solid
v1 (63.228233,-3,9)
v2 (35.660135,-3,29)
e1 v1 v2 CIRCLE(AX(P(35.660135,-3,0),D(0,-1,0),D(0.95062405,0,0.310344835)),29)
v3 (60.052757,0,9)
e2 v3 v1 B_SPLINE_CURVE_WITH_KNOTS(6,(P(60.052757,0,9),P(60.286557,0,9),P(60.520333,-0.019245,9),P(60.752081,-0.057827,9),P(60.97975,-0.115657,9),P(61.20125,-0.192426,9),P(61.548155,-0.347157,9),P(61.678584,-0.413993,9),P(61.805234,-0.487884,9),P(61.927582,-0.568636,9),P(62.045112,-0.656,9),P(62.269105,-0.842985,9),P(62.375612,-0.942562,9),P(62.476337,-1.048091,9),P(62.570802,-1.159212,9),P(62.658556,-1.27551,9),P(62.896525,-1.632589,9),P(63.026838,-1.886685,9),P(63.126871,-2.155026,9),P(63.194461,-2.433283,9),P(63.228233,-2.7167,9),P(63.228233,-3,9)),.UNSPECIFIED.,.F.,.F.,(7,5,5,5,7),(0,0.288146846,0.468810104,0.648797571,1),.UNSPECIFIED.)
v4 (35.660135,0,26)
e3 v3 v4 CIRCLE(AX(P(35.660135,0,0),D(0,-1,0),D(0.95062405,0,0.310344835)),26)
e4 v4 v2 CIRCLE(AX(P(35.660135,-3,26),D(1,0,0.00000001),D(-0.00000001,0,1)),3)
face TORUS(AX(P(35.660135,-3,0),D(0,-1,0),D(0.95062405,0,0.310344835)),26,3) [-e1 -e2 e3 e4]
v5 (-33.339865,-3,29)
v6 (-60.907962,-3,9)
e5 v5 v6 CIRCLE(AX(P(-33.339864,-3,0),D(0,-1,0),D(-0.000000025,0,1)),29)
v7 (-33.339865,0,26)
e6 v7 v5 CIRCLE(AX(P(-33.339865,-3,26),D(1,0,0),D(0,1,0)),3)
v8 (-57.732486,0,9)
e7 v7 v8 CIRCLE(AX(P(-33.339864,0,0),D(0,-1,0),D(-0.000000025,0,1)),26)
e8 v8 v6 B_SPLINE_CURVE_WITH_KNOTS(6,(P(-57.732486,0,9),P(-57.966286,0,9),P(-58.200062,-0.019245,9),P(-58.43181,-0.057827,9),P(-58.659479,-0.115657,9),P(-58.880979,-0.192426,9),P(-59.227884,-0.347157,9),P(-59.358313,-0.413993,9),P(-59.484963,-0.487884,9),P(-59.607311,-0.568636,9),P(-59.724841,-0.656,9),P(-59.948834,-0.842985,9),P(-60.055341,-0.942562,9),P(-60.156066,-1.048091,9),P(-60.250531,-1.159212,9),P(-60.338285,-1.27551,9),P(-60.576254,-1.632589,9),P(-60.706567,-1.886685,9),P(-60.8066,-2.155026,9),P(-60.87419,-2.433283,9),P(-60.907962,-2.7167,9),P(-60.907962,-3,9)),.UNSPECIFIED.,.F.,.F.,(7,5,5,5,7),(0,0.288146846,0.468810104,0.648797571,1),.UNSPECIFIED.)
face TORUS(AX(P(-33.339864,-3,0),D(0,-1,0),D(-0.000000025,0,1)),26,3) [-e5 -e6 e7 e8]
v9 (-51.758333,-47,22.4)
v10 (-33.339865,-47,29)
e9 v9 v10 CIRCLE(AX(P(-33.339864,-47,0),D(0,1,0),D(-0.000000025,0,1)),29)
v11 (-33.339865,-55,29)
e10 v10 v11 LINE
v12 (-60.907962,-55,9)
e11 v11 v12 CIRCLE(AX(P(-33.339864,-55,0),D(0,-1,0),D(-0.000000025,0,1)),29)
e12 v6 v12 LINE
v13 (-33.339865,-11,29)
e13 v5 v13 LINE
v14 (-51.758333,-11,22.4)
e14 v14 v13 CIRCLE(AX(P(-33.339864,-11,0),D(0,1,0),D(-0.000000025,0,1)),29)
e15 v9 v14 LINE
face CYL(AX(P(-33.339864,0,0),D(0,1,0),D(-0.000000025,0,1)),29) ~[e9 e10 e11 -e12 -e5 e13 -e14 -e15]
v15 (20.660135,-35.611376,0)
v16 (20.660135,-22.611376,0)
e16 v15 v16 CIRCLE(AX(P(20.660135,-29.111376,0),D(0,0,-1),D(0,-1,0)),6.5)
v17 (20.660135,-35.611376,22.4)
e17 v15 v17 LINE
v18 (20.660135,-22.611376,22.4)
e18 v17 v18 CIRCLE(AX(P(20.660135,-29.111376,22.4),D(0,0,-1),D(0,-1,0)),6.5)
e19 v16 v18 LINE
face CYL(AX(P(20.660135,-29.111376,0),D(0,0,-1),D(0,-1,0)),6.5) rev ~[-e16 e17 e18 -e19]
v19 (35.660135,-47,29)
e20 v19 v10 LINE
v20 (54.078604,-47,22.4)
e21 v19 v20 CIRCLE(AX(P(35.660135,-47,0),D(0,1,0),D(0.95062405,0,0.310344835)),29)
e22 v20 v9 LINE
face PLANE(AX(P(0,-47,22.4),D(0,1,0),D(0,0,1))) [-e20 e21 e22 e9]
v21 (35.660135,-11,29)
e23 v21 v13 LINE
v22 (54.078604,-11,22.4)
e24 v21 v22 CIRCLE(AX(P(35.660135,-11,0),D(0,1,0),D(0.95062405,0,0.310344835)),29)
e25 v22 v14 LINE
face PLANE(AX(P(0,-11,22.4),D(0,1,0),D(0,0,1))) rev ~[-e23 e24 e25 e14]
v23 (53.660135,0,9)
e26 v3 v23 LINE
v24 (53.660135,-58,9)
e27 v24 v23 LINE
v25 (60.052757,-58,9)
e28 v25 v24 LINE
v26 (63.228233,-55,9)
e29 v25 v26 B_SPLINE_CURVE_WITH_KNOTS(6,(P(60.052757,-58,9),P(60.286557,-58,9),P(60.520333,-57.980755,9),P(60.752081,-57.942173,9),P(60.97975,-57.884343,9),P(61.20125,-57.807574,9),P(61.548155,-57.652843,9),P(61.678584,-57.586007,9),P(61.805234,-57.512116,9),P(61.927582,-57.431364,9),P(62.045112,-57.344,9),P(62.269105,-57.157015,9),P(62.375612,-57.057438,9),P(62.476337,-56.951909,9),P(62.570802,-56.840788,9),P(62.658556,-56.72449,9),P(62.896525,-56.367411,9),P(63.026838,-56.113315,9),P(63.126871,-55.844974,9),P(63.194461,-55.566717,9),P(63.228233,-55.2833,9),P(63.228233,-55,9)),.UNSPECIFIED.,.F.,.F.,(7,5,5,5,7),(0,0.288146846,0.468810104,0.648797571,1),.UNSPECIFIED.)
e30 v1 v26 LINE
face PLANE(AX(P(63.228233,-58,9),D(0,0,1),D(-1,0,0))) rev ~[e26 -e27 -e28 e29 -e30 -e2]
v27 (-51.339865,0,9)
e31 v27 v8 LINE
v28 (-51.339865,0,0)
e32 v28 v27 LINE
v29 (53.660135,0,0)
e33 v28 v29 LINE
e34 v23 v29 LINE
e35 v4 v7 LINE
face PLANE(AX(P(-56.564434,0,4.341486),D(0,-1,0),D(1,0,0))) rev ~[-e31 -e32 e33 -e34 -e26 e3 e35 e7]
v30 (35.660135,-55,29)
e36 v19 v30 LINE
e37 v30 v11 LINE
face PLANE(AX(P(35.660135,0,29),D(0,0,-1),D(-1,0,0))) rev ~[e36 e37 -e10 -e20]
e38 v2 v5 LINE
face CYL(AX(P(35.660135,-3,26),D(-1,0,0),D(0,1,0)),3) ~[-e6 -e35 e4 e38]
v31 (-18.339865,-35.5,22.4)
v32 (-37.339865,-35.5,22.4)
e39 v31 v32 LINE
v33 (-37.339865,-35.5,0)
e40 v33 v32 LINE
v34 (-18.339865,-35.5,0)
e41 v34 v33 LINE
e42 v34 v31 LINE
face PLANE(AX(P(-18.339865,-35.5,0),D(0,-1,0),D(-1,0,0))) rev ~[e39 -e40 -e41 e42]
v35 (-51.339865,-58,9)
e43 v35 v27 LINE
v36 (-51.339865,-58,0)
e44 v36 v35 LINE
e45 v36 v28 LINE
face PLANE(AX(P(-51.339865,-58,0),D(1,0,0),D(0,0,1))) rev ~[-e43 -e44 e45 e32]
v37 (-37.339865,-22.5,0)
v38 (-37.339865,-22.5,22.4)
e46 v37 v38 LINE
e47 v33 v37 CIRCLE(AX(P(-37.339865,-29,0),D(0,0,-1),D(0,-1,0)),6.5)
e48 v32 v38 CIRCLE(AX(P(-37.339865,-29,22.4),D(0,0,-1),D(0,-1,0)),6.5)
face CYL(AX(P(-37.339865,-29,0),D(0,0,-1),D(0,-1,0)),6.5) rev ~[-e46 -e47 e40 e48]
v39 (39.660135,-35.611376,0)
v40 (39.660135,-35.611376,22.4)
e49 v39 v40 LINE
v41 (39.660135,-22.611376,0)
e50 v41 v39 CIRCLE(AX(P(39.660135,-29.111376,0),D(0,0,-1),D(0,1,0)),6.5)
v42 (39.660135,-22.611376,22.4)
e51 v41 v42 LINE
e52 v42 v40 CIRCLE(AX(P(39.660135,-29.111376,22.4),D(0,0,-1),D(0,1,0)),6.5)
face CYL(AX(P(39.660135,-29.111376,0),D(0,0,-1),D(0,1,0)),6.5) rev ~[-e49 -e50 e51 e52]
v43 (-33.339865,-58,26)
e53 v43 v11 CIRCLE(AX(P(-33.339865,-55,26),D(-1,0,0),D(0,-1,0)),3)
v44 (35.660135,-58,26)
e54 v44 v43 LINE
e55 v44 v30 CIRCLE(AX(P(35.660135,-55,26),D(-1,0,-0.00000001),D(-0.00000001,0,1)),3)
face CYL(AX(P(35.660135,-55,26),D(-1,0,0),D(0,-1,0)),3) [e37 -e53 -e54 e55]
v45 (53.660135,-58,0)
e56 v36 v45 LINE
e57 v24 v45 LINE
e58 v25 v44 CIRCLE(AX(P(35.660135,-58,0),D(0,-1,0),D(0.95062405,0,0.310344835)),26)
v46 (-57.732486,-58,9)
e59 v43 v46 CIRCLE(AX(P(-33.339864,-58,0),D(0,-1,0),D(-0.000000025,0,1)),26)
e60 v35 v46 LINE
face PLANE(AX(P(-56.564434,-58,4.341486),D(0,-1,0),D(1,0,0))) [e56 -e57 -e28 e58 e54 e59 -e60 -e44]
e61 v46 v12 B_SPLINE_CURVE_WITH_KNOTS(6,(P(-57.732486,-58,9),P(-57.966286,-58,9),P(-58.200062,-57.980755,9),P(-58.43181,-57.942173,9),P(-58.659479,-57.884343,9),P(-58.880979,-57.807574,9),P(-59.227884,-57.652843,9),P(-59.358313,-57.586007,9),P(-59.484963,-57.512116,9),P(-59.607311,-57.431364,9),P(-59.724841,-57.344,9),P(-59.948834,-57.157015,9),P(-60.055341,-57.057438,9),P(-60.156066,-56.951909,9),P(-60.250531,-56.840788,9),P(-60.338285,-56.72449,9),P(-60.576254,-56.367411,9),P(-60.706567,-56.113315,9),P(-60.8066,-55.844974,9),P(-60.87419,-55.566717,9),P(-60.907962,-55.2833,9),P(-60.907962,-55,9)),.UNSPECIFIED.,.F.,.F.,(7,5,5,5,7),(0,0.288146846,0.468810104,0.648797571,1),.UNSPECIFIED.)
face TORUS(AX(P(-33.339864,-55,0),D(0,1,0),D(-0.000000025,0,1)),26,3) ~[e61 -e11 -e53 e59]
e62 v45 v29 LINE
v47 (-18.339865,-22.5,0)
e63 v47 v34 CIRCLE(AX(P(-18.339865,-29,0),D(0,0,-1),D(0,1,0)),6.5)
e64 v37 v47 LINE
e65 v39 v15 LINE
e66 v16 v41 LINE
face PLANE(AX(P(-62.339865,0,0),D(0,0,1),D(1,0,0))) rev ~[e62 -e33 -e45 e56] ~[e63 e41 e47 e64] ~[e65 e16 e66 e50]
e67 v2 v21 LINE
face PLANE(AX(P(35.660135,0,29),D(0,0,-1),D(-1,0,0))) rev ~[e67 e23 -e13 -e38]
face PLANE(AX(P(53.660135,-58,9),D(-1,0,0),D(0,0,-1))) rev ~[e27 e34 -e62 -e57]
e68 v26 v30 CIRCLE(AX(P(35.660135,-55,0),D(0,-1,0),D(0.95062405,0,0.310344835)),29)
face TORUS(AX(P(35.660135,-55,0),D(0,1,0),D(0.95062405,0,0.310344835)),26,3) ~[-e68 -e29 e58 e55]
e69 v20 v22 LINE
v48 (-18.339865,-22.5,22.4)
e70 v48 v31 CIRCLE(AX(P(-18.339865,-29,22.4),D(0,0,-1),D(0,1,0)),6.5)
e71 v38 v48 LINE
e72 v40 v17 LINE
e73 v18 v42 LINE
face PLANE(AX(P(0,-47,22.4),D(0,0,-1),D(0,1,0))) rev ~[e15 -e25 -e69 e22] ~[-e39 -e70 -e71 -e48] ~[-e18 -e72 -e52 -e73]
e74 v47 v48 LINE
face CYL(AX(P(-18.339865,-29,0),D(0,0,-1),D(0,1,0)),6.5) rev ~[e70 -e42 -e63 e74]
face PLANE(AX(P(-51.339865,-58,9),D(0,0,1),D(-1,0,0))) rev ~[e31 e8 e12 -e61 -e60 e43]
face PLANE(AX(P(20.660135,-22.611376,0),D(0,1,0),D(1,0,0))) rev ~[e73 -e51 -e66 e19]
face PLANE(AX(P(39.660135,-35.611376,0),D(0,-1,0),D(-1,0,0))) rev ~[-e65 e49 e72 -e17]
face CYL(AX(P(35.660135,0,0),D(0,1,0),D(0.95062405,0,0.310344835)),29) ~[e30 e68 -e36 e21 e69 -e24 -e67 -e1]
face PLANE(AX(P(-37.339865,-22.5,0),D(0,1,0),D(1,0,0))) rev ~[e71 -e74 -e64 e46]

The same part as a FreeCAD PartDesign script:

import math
import FreeCAD as App
import Part
import Sketcher


def edges_at(feature, points):
    """Names of the edges that pass closest to the given points."""
    edges = feature.Shape.Edges
    near = lambda p: min(range(len(edges)), key=lambda i: edges[i].distToShape(Part.Vertex(*p))[0])
    return sorted({f"Edge{near(p) + 1}" for p in points})

doc = App.newDocument("Part")
params = doc.addObject("Spreadsheet::Sheet", "Params")
for row, (alias, value) in enumerate([
    ("sketch1_radius", "29.000002 mm"),
    ("sketch1_width", "127 mm"),
    ("sketch1_width2", "69 mm"),
    ("pad1_length", "58 mm"),
    ("sketch2_radius", "29.000002 mm"),
    ("sketch2_width", "11 mm"),
    ("sketch2_height", "9 mm"),
    ("sketch3_width", "36 mm"),
    ("sketch3_height", "6.6 mm"),
    ("sketch4_radius", "6.5 mm"),
    ("sketch4_width", "19 mm"),
    ("fillet_radius", "3 mm"),
    ("sketch5_radius", "6.5 mm"),
    ("sketch5_width", "19 mm"),
    ("pocket4_length", "25 mm"),
], start=1):
    params.set(f"A{row}", alias)
    params.set(f"B{row}", "=" + value)
    params.setAlias(f"B{row}", alias)

body = doc.addObject("PartDesign::Body", "Body")

# Sketch on XZ plane
sketch1 = body.newObject("Sketcher::SketchObject", "Sketch")
sketch1.AttachmentSupport = (doc.getObject("XZ_Plane"), [""])
sketch1.MapMode = "FlatFace"
sketch1.addGeometry(Part.ArcOfCircle(Part.Circle(App.Vector(-33.339863, -0.000002, 0), App.Vector(0, 0, 1), 29.000002), math.radians(161.919985), math.radians(179.999996)), False)
sketch1.addGeometry(Part.LineSegment(App.Vector(-62.339865, 0, 0), App.Vector(64.660135, 0, 0)), False)
sketch1.addGeometry(Part.ArcOfCircle(Part.Circle(App.Vector(35.660174, 0.000008, 0), App.Vector(0, 0, 1), 28.999961), math.radians(-0.000015), math.radians(18.080022)), False)
sketch1.addGeometry(Part.ArcOfCircle(Part.Circle(App.Vector(35.660135, 0, 0), App.Vector(0, 0, 1), 29), math.radians(18.080013), math.radians(90.000001)), False)
sketch1.addGeometry(Part.LineSegment(App.Vector(35.660135, 29, 0), App.Vector(-33.339865, 29, 0)), False)
sketch1.addGeometry(Part.ArcOfCircle(Part.Circle(App.Vector(-33.339864, 0, 0), App.Vector(0, 0, 1), 29), math.radians(90.000001), math.radians(161.919987)), False)
sketch1.addConstraint(Sketcher.Constraint("Coincident", 0, 2, 1, 1))
sketch1.addConstraint(Sketcher.Constraint("Coincident", 1, 2, 2, 1))
sketch1.addConstraint(Sketcher.Constraint("Coincident", 2, 2, 3, 1))
sketch1.addConstraint(Sketcher.Constraint("Coincident", 3, 2, 4, 1))
sketch1.addConstraint(Sketcher.Constraint("Coincident", 4, 2, 5, 1))
sketch1.addConstraint(Sketcher.Constraint("Coincident", 5, 2, 0, 1))
sketch1.addConstraint(Sketcher.Constraint("Horizontal", 1))
sketch1.addConstraint(Sketcher.Constraint("Horizontal", 4))
sketch1.addConstraint(Sketcher.Constraint("Coincident", 5, 3, 0, 3))
sketch1.addConstraint(Sketcher.Constraint("PointOnObject", 0, 3, -1))
sketch1.addConstraint(Sketcher.Constraint("PointOnObject", 3, 3, -1))
sketch1.addConstraint(Sketcher.Constraint("PointOnObject", 0, 2, -1))
sketch1.addConstraint(Sketcher.Constraint("Radius", 0, 29.000002))
sketch1.addConstraint(Sketcher.Constraint("DistanceX", 1, 1, 1, 2, 127.0))
sketch1.addConstraint(Sketcher.Constraint("DistanceX", 4, 2, 4, 1, 69.0))
sketch1.addConstraint(Sketcher.Constraint("DistanceY", -1, 1, 2, 2, 9.0))
sketch1.addConstraint(Sketcher.Constraint("DistanceY", -1, 1, 5, 2, 9.0))
sketch1.addConstraint(Sketcher.Constraint("DistanceX", 0, 3, 3, 3, 68.999999))
sketch1.addConstraint(Sketcher.Constraint("DistanceX", 3, 2, 1, 2, 29.0))
sketch1.addConstraint(Sketcher.Constraint("Radius", 2, 28.999961))
sketch1.addConstraint(Sketcher.Constraint("DistanceX", 0, 3, -1, 1, 33.339863))
sketch1.setExpression("Constraints[12]", "Params.sketch1_radius")
sketch1.setExpression("Constraints[13]", "Params.sketch1_width")
sketch1.setExpression("Constraints[14]", "Params.sketch1_width2")
pad1 = body.newObject("PartDesign::Pad", "Pad")
pad1.Profile = sketch1
pad1.setExpression("Length", "Params.pad1_length")

# Sketch on XZ plane
sketch2 = body.newObject("Sketcher::SketchObject", "Sketch001")
sketch2.AttachmentSupport = (doc.getObject("XZ_Plane"), [""])
sketch2.MapMode = "FlatFace"
sketch2.AttachmentOffset = App.Placement(App.Vector(0, 0, 58), App.Rotation())
sketch2.addGeometry(Part.LineSegment(App.Vector(-62, 0, 0), App.Vector(-51, 0, 0)), False)
sketch2.addGeometry(Part.LineSegment(App.Vector(-51, 0, 0), App.Vector(-51, 9, 0)), False)
sketch2.addGeometry(Part.LineSegment(App.Vector(-51, 9, 0), App.Vector(-61, 9, 0)), False)
sketch2.addGeometry(Part.ArcOfCircle(Part.Circle(App.Vector(-33, 0, 0), App.Vector(0, 0, 1), 29), math.radians(161.92), math.radians(180)), False)
sketch2.addGeometry(Part.LineSegment(App.Vector(54, 9, 0), App.Vector(54, 0, 0)), False)
sketch2.addGeometry(Part.LineSegment(App.Vector(54, 0, 0), App.Vector(65, 0, 0)), False)
sketch2.addGeometry(Part.ArcOfCircle(Part.Circle(App.Vector(36, 0, 0), App.Vector(0, 0, 1), 29), math.radians(0), math.radians(18.08)), False)
sketch2.addGeometry(Part.LineSegment(App.Vector(63, 9, 0), App.Vector(54, 9, 0)), False)
sketch2.addConstraint(Sketcher.Constraint("Coincident", 0, 2, 1, 1))
sketch2.addConstraint(Sketcher.Constraint("Coincident", 1, 2, 2, 1))
sketch2.addConstraint(Sketcher.Constraint("Coincident", 2, 2, 3, 1))
sketch2.addConstraint(Sketcher.Constraint("Coincident", 3, 2, 0, 1))
sketch2.addConstraint(Sketcher.Constraint("Coincident", 4, 2, 5, 1))
sketch2.addConstraint(Sketcher.Constraint("Coincident", 5, 2, 6, 1))
sketch2.addConstraint(Sketcher.Constraint("Coincident", 6, 2, 7, 1))
sketch2.addConstraint(Sketcher.Constraint("Coincident", 7, 2, 4, 1))
sketch2.addConstraint(Sketcher.Constraint("Horizontal", 0))
sketch2.addConstraint(Sketcher.Constraint("Vertical", 1))
sketch2.addConstraint(Sketcher.Constraint("Horizontal", 2))
sketch2.addConstraint(Sketcher.Constraint("Vertical", 4))
sketch2.addConstraint(Sketcher.Constraint("Horizontal", 5))
sketch2.addConstraint(Sketcher.Constraint("Horizontal", 7))
sketch2.addConstraint(Sketcher.Constraint("PointOnObject", 3, 3, -1))
sketch2.addConstraint(Sketcher.Constraint("PointOnObject", 0, 2, -1))
sketch2.addConstraint(Sketcher.Constraint("PointOnObject", 4, 2, -1))
sketch2.addConstraint(Sketcher.Constraint("Horizontal", 2, 2, 6, 2))
sketch2.addConstraint(Sketcher.Constraint("Equal", 0, 5))
sketch2.addConstraint(Sketcher.Constraint("Equal", 2, 7))
sketch2.addConstraint(Sketcher.Constraint("Radius", 3, 29.000002))
sketch2.addConstraint(Sketcher.Constraint("DistanceX", 0, 1, 0, 2, 11.0))
sketch2.addConstraint(Sketcher.Constraint("DistanceY", 1, 1, 1, 2, 9.0))
sketch2.addConstraint(Sketcher.Constraint("DistanceX", 3, 3, 4, 2, 86.999998))
sketch2.addConstraint(Sketcher.Constraint("Radius", 6, 28.999961))
sketch2.addConstraint(Sketcher.Constraint("DistanceX", 2, 2, -1, 1, 60.907962))
sketch2.setExpression("Constraints[20]", "Params.sketch2_radius")
sketch2.setExpression("Constraints[21]", "Params.sketch2_width")
sketch2.setExpression("Constraints[22]", "Params.sketch2_height")
pocket1 = body.newObject("PartDesign::Pocket", "Pocket")
pocket1.Profile = sketch2
pocket1.Type = "ThroughAll"

# Sketch on YZ plane
sketch3 = body.newObject("Sketcher::SketchObject", "Sketch002")
sketch3.AttachmentSupport = (doc.getObject("YZ_Plane"), [""])
sketch3.MapMode = "FlatFace"
sketch3.addGeometry(Part.LineSegment(App.Vector(-47, 29, 0), App.Vector(-47, 22, 0)), False)
sketch3.addGeometry(Part.LineSegment(App.Vector(-47, 22, 0), App.Vector(-11, 22, 0)), False)
sketch3.addGeometry(Part.LineSegment(App.Vector(-11, 22, 0), App.Vector(-11, 29, 0)), False)
sketch3.addGeometry(Part.LineSegment(App.Vector(-11, 29, 0), App.Vector(-47, 29, 0)), False)
sketch3.addConstraint(Sketcher.Constraint("Coincident", 0, 2, 1, 1))
sketch3.addConstraint(Sketcher.Constraint("Coincident", 1, 2, 2, 1))
sketch3.addConstraint(Sketcher.Constraint("Coincident", 2, 2, 3, 1))
sketch3.addConstraint(Sketcher.Constraint("Coincident", 3, 2, 0, 1))
sketch3.addConstraint(Sketcher.Constraint("Vertical", 0))
sketch3.addConstraint(Sketcher.Constraint("Horizontal", 1))
sketch3.addConstraint(Sketcher.Constraint("Vertical", 2))
sketch3.addConstraint(Sketcher.Constraint("Horizontal", 3))
sketch3.addConstraint(Sketcher.Constraint("DistanceX", 1, 1, 1, 2, 36.0))
sketch3.addConstraint(Sketcher.Constraint("DistanceY", 0, 2, 0, 1, 6.6))
sketch3.addConstraint(Sketcher.Constraint("DistanceX", 0, 2, -1, 1, 47.0))
sketch3.addConstraint(Sketcher.Constraint("DistanceY", -1, 1, 2, 2, 29.0))
sketch3.setExpression("Constraints[8]", "Params.sketch3_width")
sketch3.setExpression("Constraints[9]", "Params.sketch3_height")
pocket2 = body.newObject("PartDesign::Pocket", "Pocket001")
pocket2.Profile = sketch3
pocket2.Type = "ThroughAll"
pocket2.Midplane = True

# Sketch on XY plane
sketch4 = body.newObject("Sketcher::SketchObject", "Sketch003")
sketch4.AttachmentSupport = (doc.getObject("XY_Plane"), [""])
sketch4.MapMode = "FlatFace"
sketch4.addGeometry(Part.ArcOfCircle(Part.Circle(App.Vector(-37, -29, 0), App.Vector(0, 0, 1), 6), math.radians(90), math.radians(270)), False)
sketch4.addGeometry(Part.LineSegment(App.Vector(-37, -22, 0), App.Vector(-18, -22, 0)), False)
sketch4.addGeometry(Part.ArcOfCircle(Part.Circle(App.Vector(-18, -29, 0), App.Vector(0, 0, 1), 6), math.radians(-90), math.radians(90)), False)
sketch4.addGeometry(Part.LineSegment(App.Vector(-18, -36, 0), App.Vector(-37, -36, 0)), False)
sketch4.addGeometry(Part.ArcOfCircle(Part.Circle(App.Vector(21, -29, 0), App.Vector(0, 0, 1), 6), math.radians(90), math.radians(270)), False)
sketch4.addGeometry(Part.LineSegment(App.Vector(21, -23, 0), App.Vector(40, -23, 0)), False)
sketch4.addGeometry(Part.ArcOfCircle(Part.Circle(App.Vector(40, -29, 0), App.Vector(0, 0, 1), 6), math.radians(-90), math.radians(90)), False)
sketch4.addGeometry(Part.LineSegment(App.Vector(40, -36, 0), App.Vector(21, -36, 0)), False)
sketch4.addConstraint(Sketcher.Constraint("Tangent", 0, 1, 1, 1))
sketch4.addConstraint(Sketcher.Constraint("Tangent", 1, 2, 2, 2))
sketch4.addConstraint(Sketcher.Constraint("Tangent", 2, 1, 3, 1))
sketch4.addConstraint(Sketcher.Constraint("Tangent", 3, 2, 0, 2))
sketch4.addConstraint(Sketcher.Constraint("Tangent", 4, 1, 5, 1))
sketch4.addConstraint(Sketcher.Constraint("Tangent", 5, 2, 6, 2))
sketch4.addConstraint(Sketcher.Constraint("Tangent", 6, 1, 7, 1))
sketch4.addConstraint(Sketcher.Constraint("Tangent", 7, 2, 4, 2))
sketch4.addConstraint(Sketcher.Constraint("Horizontal", 1))
sketch4.addConstraint(Sketcher.Constraint("Horizontal", 3))
sketch4.addConstraint(Sketcher.Constraint("Horizontal", 5))
sketch4.addConstraint(Sketcher.Constraint("Horizontal", 7))
sketch4.addConstraint(Sketcher.Constraint("Equal", 2, 4))
sketch4.addConstraint(Sketcher.Constraint("Equal", 3, 5))
sketch4.addConstraint(Sketcher.Constraint("Radius", 0, 6.5))
sketch4.addConstraint(Sketcher.Constraint("DistanceX", 1, 1, 1, 2, 19.0))
sketch4.addConstraint(Sketcher.Constraint("DistanceY", 0, 3, -1, 1, 29.0))
sketch4.addConstraint(Sketcher.Constraint("DistanceX", 2, 3, 4, 3, 39.0))
sketch4.addConstraint(Sketcher.Constraint("DistanceX", 0, 3, -1, 1, 37.339865))
sketch4.addConstraint(Sketcher.Constraint("DistanceY", 4, 3, -1, 1, 29.111376))
sketch4.setExpression("Constraints[14]", "Params.sketch4_radius")
sketch4.setExpression("Constraints[15]", "Params.sketch4_width")
pocket3 = body.newObject("PartDesign::Pocket", "Pocket002")
pocket3.Profile = sketch4
pocket3.Type = "ThroughAll"
pocket3.Reversed = True
doc.recompute()

fillet = body.newObject("PartDesign::Fillet", "Fillet")
fillet.Base = (pocket3, edges_at(pocket3, [(1.16, -58, 29), (1.16, 0, 29)]))
fillet.setExpression("Radius", "Params.fillet_radius")

# Sketch on XY plane
sketch5 = body.newObject("Sketcher::SketchObject", "Sketch004")
sketch5.AttachmentSupport = (doc.getObject("XY_Plane"), [""])
sketch5.MapMode = "FlatFace"
sketch5.addGeometry(Part.ArcOfCircle(Part.Circle(App.Vector(-37, -29, 0), App.Vector(0, 0, 1), 6), math.radians(90), math.radians(270)), False)
sketch5.addGeometry(Part.LineSegment(App.Vector(-37, -22, 0), App.Vector(-18, -22, 0)), False)
sketch5.addGeometry(Part.ArcOfCircle(Part.Circle(App.Vector(-18, -29, 0), App.Vector(0, 0, 1), 6), math.radians(-90), math.radians(90)), False)
sketch5.addGeometry(Part.LineSegment(App.Vector(-18, -36, 0), App.Vector(-37, -36, 0)), False)
sketch5.addGeometry(Part.ArcOfCircle(Part.Circle(App.Vector(21, -29, 0), App.Vector(0, 0, 1), 6), math.radians(90), math.radians(270)), False)
sketch5.addGeometry(Part.LineSegment(App.Vector(21, -23, 0), App.Vector(40, -23, 0)), False)
sketch5.addGeometry(Part.ArcOfCircle(Part.Circle(App.Vector(40, -29, 0), App.Vector(0, 0, 1), 6), math.radians(-90), math.radians(90)), False)
sketch5.addGeometry(Part.LineSegment(App.Vector(40, -36, 0), App.Vector(21, -36, 0)), False)
sketch5.addConstraint(Sketcher.Constraint("Tangent", 0, 1, 1, 1))
sketch5.addConstraint(Sketcher.Constraint("Tangent", 1, 2, 2, 2))
sketch5.addConstraint(Sketcher.Constraint("Tangent", 2, 1, 3, 1))
sketch5.addConstraint(Sketcher.Constraint("Tangent", 3, 2, 0, 2))
sketch5.addConstraint(Sketcher.Constraint("Tangent", 4, 1, 5, 1))
sketch5.addConstraint(Sketcher.Constraint("Tangent", 5, 2, 6, 2))
sketch5.addConstraint(Sketcher.Constraint("Tangent", 6, 1, 7, 1))
sketch5.addConstraint(Sketcher.Constraint("Tangent", 7, 2, 4, 2))
sketch5.addConstraint(Sketcher.Constraint("Horizontal", 1))
sketch5.addConstraint(Sketcher.Constraint("Horizontal", 3))
sketch5.addConstraint(Sketcher.Constraint("Horizontal", 5))
sketch5.addConstraint(Sketcher.Constraint("Horizontal", 7))
sketch5.addConstraint(Sketcher.Constraint("Equal", 2, 4))
sketch5.addConstraint(Sketcher.Constraint("Equal", 3, 5))
sketch5.addConstraint(Sketcher.Constraint("Radius", 0, 6.5))
sketch5.addConstraint(Sketcher.Constraint("DistanceX", 1, 1, 1, 2, 19.0))
sketch5.addConstraint(Sketcher.Constraint("DistanceY", 0, 3, -1, 1, 29.0))
sketch5.addConstraint(Sketcher.Constraint("DistanceX", 2, 3, 4, 3, 39.0))
sketch5.addConstraint(Sketcher.Constraint("DistanceX", 0, 3, -1, 1, 37.339865))
sketch5.addConstraint(Sketcher.Constraint("DistanceY", 4, 3, -1, 1, 29.111376))
sketch5.setExpression("Constraints[14]", "Params.sketch5_radius")
sketch5.setExpression("Constraints[15]", "Params.sketch5_width")
pocket4 = body.newObject("PartDesign::Pocket", "Pocket003")
pocket4.Profile = sketch5
pocket4.setExpression("Length", "Params.pocket4_length")

doc.recompute()
